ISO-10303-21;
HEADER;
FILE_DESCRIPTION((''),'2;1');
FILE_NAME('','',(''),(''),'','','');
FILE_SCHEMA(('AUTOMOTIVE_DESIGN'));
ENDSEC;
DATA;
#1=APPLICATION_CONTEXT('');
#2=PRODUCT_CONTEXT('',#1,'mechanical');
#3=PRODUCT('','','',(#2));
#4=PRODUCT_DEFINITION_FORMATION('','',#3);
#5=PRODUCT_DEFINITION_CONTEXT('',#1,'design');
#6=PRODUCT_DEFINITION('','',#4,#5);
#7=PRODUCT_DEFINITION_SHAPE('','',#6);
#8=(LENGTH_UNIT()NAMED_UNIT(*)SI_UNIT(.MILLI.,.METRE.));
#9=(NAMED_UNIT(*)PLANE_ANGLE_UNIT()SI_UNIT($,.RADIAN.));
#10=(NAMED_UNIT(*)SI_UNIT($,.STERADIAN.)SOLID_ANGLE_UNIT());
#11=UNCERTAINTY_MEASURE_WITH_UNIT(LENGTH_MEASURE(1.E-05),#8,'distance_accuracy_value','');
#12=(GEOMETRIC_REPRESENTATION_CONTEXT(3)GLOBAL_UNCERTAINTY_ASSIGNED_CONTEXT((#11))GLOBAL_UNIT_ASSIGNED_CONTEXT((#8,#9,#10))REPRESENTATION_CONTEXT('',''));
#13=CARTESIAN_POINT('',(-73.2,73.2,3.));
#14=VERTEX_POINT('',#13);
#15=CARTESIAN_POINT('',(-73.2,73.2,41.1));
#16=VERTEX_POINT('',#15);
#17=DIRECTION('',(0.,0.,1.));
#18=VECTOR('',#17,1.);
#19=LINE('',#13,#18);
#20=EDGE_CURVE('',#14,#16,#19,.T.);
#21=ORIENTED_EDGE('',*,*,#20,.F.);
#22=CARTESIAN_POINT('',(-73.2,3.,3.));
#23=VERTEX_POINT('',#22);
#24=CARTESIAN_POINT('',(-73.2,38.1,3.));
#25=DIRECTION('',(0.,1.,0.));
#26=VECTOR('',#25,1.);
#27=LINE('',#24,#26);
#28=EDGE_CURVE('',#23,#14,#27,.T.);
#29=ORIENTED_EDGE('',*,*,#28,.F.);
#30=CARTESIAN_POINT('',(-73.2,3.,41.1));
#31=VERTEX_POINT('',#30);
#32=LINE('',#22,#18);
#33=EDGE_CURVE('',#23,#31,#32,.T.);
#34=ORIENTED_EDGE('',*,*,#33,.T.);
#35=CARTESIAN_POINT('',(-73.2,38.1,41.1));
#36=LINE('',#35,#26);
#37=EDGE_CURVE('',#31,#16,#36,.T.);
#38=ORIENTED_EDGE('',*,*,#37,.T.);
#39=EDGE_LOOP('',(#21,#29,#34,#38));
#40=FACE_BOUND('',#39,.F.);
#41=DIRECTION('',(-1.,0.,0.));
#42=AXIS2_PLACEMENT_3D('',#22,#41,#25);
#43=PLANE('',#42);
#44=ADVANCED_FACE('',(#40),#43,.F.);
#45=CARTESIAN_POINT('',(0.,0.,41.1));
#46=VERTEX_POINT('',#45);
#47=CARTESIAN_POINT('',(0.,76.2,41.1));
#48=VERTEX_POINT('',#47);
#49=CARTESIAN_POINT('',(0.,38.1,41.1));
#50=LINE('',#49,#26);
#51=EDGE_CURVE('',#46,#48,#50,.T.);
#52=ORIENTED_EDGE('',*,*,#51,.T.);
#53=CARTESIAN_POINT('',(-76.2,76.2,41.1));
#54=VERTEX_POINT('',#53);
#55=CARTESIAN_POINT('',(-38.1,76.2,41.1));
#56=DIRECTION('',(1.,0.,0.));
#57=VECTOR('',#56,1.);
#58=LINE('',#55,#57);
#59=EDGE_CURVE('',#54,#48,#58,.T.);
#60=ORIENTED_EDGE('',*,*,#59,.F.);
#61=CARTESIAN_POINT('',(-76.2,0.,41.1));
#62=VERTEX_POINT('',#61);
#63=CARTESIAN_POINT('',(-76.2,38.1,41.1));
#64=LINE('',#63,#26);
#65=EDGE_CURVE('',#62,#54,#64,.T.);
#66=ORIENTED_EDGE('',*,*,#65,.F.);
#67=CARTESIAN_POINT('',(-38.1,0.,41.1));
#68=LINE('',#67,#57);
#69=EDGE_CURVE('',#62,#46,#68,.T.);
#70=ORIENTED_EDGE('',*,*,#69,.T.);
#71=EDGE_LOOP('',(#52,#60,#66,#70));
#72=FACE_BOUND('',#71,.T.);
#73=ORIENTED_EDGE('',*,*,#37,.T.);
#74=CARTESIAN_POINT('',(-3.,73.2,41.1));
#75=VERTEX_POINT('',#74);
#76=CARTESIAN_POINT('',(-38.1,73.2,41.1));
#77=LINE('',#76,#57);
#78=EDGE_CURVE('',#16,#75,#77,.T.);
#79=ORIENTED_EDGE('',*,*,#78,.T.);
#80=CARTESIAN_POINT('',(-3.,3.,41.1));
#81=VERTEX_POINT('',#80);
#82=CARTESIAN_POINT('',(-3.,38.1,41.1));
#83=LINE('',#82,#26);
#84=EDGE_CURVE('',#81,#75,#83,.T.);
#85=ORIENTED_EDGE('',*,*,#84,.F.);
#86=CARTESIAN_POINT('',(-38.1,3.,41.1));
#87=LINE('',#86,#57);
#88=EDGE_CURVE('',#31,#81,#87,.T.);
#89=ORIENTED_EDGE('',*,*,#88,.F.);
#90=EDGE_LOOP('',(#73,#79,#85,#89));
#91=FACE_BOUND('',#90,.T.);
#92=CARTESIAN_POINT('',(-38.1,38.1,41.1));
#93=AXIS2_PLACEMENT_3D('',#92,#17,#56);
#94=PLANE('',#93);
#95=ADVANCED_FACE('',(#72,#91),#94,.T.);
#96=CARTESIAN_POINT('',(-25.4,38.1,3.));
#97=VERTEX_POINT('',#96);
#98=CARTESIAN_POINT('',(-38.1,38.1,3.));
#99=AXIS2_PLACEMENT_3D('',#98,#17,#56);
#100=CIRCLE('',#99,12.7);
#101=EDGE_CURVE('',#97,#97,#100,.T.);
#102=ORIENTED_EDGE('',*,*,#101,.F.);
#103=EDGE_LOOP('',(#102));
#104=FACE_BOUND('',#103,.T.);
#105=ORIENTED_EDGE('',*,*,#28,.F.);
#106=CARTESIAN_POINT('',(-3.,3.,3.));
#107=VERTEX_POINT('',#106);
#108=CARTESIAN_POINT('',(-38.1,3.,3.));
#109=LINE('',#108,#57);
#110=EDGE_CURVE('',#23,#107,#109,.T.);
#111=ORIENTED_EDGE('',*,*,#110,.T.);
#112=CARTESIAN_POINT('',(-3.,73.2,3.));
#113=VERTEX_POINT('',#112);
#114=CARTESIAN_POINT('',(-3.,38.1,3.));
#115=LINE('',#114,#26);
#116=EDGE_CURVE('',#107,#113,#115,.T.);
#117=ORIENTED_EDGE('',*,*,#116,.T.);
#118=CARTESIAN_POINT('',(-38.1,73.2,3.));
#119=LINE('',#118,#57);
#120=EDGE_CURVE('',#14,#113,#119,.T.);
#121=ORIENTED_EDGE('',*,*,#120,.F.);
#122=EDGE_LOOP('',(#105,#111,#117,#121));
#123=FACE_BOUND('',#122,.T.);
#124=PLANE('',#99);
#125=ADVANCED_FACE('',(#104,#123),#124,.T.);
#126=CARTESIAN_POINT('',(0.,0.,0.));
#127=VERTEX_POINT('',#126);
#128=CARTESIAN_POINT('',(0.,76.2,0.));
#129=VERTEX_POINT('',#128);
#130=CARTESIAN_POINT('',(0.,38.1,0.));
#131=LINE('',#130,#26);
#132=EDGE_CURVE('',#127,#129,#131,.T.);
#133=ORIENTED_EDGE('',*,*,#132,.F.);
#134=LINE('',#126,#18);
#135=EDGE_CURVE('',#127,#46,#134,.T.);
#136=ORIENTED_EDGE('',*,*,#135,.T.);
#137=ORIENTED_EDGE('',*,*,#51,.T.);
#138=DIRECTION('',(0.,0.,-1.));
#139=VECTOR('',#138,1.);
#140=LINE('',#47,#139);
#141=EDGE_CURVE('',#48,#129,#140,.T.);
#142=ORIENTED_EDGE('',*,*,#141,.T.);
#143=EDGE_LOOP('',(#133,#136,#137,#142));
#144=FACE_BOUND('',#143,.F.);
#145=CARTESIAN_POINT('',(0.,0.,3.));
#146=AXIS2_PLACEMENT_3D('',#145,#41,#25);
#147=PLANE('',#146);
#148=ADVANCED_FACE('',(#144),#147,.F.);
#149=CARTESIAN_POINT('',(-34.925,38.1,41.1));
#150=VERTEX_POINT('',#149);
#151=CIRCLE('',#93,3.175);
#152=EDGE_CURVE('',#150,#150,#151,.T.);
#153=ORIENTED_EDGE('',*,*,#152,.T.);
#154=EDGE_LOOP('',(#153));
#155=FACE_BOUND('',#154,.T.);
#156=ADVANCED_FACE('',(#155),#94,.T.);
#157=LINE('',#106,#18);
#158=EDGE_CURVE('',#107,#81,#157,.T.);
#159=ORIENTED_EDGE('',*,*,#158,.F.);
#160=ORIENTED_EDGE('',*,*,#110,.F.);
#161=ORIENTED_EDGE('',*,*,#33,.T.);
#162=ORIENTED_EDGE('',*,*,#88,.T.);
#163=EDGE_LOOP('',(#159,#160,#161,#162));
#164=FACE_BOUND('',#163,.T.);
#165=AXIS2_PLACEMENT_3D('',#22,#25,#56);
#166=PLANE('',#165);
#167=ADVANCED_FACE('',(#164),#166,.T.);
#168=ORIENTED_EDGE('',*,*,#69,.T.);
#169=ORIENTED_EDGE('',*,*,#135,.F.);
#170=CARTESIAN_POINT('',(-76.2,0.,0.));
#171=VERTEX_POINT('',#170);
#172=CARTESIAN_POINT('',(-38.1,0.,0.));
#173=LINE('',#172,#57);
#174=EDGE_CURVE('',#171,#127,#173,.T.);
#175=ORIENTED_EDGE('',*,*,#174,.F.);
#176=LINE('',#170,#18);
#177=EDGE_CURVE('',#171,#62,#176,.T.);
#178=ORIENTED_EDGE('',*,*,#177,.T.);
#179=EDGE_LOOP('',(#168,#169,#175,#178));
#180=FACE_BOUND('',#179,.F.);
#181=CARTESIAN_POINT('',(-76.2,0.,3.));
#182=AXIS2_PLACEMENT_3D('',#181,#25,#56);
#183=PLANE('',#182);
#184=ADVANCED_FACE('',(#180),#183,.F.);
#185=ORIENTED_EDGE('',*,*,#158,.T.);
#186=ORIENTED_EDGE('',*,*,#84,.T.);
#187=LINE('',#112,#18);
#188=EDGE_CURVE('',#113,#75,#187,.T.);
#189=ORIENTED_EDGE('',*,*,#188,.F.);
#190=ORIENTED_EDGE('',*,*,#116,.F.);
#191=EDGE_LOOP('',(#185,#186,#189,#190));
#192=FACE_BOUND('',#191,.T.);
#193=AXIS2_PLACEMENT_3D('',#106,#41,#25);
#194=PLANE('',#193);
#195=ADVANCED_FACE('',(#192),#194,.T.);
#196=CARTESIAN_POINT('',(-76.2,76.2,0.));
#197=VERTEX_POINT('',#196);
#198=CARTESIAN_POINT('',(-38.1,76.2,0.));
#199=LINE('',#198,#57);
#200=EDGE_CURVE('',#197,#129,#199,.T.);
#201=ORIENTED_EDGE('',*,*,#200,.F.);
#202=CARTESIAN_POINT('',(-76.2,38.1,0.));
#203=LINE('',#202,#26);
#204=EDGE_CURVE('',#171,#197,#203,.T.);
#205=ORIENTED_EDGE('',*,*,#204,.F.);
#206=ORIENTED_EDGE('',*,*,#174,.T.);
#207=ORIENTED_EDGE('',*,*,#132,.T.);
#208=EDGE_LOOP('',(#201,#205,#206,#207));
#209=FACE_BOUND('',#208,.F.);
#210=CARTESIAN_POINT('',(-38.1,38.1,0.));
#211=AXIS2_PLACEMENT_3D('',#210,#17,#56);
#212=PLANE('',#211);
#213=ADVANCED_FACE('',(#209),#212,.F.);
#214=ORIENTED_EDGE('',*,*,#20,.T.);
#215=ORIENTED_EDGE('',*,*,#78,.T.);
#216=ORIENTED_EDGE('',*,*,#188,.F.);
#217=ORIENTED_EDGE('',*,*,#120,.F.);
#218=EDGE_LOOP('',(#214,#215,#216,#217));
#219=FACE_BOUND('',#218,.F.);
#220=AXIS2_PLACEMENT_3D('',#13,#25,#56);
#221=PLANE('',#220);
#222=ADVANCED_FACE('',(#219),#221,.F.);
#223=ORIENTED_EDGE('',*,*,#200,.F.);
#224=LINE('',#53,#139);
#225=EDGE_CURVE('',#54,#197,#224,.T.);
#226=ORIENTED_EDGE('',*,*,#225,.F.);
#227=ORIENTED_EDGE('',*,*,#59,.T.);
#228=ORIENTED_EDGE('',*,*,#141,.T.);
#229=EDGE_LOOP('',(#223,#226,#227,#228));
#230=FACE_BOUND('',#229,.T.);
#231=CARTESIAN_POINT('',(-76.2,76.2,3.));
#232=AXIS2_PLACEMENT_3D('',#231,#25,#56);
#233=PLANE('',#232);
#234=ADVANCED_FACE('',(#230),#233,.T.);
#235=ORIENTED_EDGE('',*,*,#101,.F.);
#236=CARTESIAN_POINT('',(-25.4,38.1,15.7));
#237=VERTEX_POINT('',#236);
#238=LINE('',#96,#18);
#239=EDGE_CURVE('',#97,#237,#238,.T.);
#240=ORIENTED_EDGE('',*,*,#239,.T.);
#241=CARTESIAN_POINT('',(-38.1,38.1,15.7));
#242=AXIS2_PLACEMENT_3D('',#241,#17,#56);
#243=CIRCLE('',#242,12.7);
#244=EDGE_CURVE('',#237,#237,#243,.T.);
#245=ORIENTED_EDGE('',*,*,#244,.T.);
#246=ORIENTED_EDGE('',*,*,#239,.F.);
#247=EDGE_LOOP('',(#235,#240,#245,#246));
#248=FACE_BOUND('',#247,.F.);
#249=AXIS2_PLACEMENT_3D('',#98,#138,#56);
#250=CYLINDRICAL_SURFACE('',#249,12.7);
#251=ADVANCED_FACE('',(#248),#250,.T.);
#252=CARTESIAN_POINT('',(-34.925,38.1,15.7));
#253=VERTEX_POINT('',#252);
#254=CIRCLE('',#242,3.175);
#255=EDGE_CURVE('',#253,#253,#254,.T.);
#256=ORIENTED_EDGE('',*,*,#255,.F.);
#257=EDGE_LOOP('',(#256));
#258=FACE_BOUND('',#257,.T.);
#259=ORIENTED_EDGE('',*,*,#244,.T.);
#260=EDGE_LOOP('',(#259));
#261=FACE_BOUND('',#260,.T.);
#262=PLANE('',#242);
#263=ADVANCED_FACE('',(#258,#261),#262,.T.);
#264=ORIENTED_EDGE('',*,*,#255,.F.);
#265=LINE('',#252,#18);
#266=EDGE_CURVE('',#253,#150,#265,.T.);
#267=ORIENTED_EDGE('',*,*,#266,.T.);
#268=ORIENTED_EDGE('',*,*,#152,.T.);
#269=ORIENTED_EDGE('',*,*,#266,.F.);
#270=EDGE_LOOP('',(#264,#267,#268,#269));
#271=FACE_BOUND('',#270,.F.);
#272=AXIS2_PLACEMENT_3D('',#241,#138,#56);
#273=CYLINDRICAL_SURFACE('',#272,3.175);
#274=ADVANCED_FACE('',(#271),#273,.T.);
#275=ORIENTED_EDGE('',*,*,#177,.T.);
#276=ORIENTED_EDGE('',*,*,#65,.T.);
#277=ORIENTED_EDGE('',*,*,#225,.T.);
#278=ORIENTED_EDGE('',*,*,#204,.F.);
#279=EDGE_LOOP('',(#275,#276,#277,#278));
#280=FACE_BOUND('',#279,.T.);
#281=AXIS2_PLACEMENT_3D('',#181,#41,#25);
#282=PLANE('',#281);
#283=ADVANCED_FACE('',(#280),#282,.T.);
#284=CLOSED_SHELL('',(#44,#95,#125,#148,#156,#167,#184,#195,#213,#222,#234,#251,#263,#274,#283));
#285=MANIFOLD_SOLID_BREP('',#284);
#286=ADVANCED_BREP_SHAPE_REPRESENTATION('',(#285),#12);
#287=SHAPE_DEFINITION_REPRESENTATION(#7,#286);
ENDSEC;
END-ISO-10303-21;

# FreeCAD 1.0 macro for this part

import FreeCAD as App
import Part
import Sketcher

V = App.Vector
Q = App.Units.Quantity

doc = App.newDocument("Part")
body = doc.addObject("PartDesign::Body", "Body")

# Sketch on XY plane
sketch1 = doc.addObject("Sketcher::SketchObject", "Sketch")
body.addObject(sketch1)
sketch1.AttachmentSupport = (doc.XY_Plane, [""])
sketch1.MapMode = "FlatFace"
sketch1.addGeometry([
    Part.LineSegment(V(-76, 76, 0), V(-76, 0, 0)),
    Part.LineSegment(V(-76, 0, 0), V(0, 0, 0)),
    Part.LineSegment(V(0, 0, 0), V(0, 76, 0)),
    Part.LineSegment(V(0, 76, 0), V(-76, 76, 0)),
], False)
sketch1.addConstraint([
    Sketcher.Constraint("Coincident", 0, 2, 1, 1),
    Sketcher.Constraint("Coincident", 1, 2, 2, 1),
    Sketcher.Constraint("Coincident", 2, 2, 3, 1),
    Sketcher.Constraint("Coincident", 3, 2, 0, 1),
    Sketcher.Constraint("Vertical", 0),
    Sketcher.Constraint("Horizontal", 1),
    Sketcher.Constraint("Vertical", 2),
    Sketcher.Constraint("Horizontal", 3),
    Sketcher.Constraint("Coincident", 1, 2, -1, 1),
    Sketcher.Constraint("Equal", 3, 0),
    Sketcher.Constraint("DistanceX", 1, 1, 1, 2, Q("3 in")),
])
pad1 = doc.addObject("PartDesign::Pad", "Pad")
body.addObject(pad1)
pad1.Profile = sketch1
pad1.Length = 3

# Sketch on XY plane
sketch2 = doc.addObject("Sketcher::SketchObject", "Sketch001")
body.addObject(sketch2)
sketch2.AttachmentSupport = (doc.XY_Plane, [""])
sketch2.MapMode = "FlatFace"
sketch2.AttachmentOffset = App.Placement(V(0, 0, 3), App.Rotation())
sketch2.addGeometry([
    Part.LineSegment(V(-76, 76, 0), V(-76, 0, 0)),  # 0
    Part.LineSegment(V(-76, 0, 0), V(0, 0, 0)),  # 1
    Part.LineSegment(V(0, 0, 0), V(0, 76, 0)),  # 2
    Part.LineSegment(V(0, 76, 0), V(-76, 76, 0)),  # 3
    Part.LineSegment(V(-3, 3, 0), V(-73, 3, 0)),  # 4
    Part.LineSegment(V(-73, 3, 0), V(-73, 73, 0)),  # 5
    Part.LineSegment(V(-73, 73, 0), V(-3, 73, 0)),  # 6
    Part.LineSegment(V(-3, 73, 0), V(-3, 3, 0)),  # 7
], False)
sketch2.addConstraint([
    Sketcher.Constraint("Coincident", 0, 2, 1, 1),
    Sketcher.Constraint("Coincident", 1, 2, 2, 1),
    Sketcher.Constraint("Coincident", 2, 2, 3, 1),
    Sketcher.Constraint("Coincident", 3, 2, 0, 1),
    Sketcher.Constraint("Coincident", 4, 2, 5, 1),
    Sketcher.Constraint("Coincident", 5, 2, 6, 1),
    Sketcher.Constraint("Coincident", 6, 2, 7, 1),
    Sketcher.Constraint("Coincident", 7, 2, 4, 1),
    Sketcher.Constraint("Vertical", 0),
    Sketcher.Constraint("Horizontal", 1),
    Sketcher.Constraint("Vertical", 2),
    Sketcher.Constraint("Horizontal", 3),
    Sketcher.Constraint("Horizontal", 4),
    Sketcher.Constraint("Vertical", 5),
    Sketcher.Constraint("Horizontal", 6),
    Sketcher.Constraint("Vertical", 7),
    Sketcher.Constraint("Coincident", 1, 2, -1, 1),
    Sketcher.Constraint("Equal", 3, 0),
    Sketcher.Constraint("Equal", 6, 5),
    Sketcher.Constraint("DistanceX", 1, 1, 1, 2, Q("3 in")),
    Sketcher.Constraint("DistanceX", 4, 2, 4, 1, Q("70.2 mm")),
    Sketcher.Constraint("DistanceX", 4, 2, -1, 1, Q("73.2 mm")),
    Sketcher.Constraint("DistanceY", -1, 1, 4, 2, Q("3 mm")),
])
pad2 = doc.addObject("PartDesign::Pad", "Pad001")
body.addObject(pad2)
pad2.Profile = sketch2
pad2.Length = Q("1.5 in")

# Sketch on XY plane
sketch3 = doc.addObject("Sketcher::SketchObject", "Sketch002")
body.addObject(sketch3)
sketch3.AttachmentSupport = (doc.XY_Plane, [""])
sketch3.MapMode = "FlatFace"
sketch3.AttachmentOffset = App.Placement(V(0, 0, 3), App.Rotation())
sketch3.addGeometry(Part.Circle(V(-38, 38, 0), V(0, 0, 1), 13), False)
sketch3.addConstraint([
    Sketcher.Constraint("Diameter", 0, Q("1 in")),
    Sketcher.Constraint("DistanceX", 0, 3, -1, 1, Q("1.5 in")),
    Sketcher.Constraint("DistanceY", -1, 1, 0, 3, Q("1.5 in")),
])
pad3 = doc.addObject("PartDesign::Pad", "Pad002")
body.addObject(pad3)
pad3.Profile = sketch3
pad3.Length = Q("0.5 in")

# Sketch on XY plane
sketch4 = doc.addObject("Sketcher::SketchObject", "Sketch003")
body.addObject(sketch4)
sketch4.AttachmentSupport = (doc.XY_Plane, [""])
sketch4.MapMode = "FlatFace"
sketch4.AttachmentOffset = App.Placement(V(0, 0, 15.7), App.Rotation())
sketch4.addGeometry(Part.Circle(V(-38.1, 38.1, 0), V(0, 0, 1), 3.2), False)
sketch4.addConstraint([
    Sketcher.Constraint("Diameter", 0, Q("0.25 in")),
    Sketcher.Constraint("DistanceX", 0, 3, -1, 1, Q("1.5 in")),
    Sketcher.Constraint("DistanceY", -1, 1, 0, 3, Q("1.5 in")),
])
pad4 = doc.addObject("PartDesign::Pad", "Pad003")
body.addObject(pad4)
pad4.Profile = sketch4
pad4.Length = Q("1 in")

doc.recompute()
